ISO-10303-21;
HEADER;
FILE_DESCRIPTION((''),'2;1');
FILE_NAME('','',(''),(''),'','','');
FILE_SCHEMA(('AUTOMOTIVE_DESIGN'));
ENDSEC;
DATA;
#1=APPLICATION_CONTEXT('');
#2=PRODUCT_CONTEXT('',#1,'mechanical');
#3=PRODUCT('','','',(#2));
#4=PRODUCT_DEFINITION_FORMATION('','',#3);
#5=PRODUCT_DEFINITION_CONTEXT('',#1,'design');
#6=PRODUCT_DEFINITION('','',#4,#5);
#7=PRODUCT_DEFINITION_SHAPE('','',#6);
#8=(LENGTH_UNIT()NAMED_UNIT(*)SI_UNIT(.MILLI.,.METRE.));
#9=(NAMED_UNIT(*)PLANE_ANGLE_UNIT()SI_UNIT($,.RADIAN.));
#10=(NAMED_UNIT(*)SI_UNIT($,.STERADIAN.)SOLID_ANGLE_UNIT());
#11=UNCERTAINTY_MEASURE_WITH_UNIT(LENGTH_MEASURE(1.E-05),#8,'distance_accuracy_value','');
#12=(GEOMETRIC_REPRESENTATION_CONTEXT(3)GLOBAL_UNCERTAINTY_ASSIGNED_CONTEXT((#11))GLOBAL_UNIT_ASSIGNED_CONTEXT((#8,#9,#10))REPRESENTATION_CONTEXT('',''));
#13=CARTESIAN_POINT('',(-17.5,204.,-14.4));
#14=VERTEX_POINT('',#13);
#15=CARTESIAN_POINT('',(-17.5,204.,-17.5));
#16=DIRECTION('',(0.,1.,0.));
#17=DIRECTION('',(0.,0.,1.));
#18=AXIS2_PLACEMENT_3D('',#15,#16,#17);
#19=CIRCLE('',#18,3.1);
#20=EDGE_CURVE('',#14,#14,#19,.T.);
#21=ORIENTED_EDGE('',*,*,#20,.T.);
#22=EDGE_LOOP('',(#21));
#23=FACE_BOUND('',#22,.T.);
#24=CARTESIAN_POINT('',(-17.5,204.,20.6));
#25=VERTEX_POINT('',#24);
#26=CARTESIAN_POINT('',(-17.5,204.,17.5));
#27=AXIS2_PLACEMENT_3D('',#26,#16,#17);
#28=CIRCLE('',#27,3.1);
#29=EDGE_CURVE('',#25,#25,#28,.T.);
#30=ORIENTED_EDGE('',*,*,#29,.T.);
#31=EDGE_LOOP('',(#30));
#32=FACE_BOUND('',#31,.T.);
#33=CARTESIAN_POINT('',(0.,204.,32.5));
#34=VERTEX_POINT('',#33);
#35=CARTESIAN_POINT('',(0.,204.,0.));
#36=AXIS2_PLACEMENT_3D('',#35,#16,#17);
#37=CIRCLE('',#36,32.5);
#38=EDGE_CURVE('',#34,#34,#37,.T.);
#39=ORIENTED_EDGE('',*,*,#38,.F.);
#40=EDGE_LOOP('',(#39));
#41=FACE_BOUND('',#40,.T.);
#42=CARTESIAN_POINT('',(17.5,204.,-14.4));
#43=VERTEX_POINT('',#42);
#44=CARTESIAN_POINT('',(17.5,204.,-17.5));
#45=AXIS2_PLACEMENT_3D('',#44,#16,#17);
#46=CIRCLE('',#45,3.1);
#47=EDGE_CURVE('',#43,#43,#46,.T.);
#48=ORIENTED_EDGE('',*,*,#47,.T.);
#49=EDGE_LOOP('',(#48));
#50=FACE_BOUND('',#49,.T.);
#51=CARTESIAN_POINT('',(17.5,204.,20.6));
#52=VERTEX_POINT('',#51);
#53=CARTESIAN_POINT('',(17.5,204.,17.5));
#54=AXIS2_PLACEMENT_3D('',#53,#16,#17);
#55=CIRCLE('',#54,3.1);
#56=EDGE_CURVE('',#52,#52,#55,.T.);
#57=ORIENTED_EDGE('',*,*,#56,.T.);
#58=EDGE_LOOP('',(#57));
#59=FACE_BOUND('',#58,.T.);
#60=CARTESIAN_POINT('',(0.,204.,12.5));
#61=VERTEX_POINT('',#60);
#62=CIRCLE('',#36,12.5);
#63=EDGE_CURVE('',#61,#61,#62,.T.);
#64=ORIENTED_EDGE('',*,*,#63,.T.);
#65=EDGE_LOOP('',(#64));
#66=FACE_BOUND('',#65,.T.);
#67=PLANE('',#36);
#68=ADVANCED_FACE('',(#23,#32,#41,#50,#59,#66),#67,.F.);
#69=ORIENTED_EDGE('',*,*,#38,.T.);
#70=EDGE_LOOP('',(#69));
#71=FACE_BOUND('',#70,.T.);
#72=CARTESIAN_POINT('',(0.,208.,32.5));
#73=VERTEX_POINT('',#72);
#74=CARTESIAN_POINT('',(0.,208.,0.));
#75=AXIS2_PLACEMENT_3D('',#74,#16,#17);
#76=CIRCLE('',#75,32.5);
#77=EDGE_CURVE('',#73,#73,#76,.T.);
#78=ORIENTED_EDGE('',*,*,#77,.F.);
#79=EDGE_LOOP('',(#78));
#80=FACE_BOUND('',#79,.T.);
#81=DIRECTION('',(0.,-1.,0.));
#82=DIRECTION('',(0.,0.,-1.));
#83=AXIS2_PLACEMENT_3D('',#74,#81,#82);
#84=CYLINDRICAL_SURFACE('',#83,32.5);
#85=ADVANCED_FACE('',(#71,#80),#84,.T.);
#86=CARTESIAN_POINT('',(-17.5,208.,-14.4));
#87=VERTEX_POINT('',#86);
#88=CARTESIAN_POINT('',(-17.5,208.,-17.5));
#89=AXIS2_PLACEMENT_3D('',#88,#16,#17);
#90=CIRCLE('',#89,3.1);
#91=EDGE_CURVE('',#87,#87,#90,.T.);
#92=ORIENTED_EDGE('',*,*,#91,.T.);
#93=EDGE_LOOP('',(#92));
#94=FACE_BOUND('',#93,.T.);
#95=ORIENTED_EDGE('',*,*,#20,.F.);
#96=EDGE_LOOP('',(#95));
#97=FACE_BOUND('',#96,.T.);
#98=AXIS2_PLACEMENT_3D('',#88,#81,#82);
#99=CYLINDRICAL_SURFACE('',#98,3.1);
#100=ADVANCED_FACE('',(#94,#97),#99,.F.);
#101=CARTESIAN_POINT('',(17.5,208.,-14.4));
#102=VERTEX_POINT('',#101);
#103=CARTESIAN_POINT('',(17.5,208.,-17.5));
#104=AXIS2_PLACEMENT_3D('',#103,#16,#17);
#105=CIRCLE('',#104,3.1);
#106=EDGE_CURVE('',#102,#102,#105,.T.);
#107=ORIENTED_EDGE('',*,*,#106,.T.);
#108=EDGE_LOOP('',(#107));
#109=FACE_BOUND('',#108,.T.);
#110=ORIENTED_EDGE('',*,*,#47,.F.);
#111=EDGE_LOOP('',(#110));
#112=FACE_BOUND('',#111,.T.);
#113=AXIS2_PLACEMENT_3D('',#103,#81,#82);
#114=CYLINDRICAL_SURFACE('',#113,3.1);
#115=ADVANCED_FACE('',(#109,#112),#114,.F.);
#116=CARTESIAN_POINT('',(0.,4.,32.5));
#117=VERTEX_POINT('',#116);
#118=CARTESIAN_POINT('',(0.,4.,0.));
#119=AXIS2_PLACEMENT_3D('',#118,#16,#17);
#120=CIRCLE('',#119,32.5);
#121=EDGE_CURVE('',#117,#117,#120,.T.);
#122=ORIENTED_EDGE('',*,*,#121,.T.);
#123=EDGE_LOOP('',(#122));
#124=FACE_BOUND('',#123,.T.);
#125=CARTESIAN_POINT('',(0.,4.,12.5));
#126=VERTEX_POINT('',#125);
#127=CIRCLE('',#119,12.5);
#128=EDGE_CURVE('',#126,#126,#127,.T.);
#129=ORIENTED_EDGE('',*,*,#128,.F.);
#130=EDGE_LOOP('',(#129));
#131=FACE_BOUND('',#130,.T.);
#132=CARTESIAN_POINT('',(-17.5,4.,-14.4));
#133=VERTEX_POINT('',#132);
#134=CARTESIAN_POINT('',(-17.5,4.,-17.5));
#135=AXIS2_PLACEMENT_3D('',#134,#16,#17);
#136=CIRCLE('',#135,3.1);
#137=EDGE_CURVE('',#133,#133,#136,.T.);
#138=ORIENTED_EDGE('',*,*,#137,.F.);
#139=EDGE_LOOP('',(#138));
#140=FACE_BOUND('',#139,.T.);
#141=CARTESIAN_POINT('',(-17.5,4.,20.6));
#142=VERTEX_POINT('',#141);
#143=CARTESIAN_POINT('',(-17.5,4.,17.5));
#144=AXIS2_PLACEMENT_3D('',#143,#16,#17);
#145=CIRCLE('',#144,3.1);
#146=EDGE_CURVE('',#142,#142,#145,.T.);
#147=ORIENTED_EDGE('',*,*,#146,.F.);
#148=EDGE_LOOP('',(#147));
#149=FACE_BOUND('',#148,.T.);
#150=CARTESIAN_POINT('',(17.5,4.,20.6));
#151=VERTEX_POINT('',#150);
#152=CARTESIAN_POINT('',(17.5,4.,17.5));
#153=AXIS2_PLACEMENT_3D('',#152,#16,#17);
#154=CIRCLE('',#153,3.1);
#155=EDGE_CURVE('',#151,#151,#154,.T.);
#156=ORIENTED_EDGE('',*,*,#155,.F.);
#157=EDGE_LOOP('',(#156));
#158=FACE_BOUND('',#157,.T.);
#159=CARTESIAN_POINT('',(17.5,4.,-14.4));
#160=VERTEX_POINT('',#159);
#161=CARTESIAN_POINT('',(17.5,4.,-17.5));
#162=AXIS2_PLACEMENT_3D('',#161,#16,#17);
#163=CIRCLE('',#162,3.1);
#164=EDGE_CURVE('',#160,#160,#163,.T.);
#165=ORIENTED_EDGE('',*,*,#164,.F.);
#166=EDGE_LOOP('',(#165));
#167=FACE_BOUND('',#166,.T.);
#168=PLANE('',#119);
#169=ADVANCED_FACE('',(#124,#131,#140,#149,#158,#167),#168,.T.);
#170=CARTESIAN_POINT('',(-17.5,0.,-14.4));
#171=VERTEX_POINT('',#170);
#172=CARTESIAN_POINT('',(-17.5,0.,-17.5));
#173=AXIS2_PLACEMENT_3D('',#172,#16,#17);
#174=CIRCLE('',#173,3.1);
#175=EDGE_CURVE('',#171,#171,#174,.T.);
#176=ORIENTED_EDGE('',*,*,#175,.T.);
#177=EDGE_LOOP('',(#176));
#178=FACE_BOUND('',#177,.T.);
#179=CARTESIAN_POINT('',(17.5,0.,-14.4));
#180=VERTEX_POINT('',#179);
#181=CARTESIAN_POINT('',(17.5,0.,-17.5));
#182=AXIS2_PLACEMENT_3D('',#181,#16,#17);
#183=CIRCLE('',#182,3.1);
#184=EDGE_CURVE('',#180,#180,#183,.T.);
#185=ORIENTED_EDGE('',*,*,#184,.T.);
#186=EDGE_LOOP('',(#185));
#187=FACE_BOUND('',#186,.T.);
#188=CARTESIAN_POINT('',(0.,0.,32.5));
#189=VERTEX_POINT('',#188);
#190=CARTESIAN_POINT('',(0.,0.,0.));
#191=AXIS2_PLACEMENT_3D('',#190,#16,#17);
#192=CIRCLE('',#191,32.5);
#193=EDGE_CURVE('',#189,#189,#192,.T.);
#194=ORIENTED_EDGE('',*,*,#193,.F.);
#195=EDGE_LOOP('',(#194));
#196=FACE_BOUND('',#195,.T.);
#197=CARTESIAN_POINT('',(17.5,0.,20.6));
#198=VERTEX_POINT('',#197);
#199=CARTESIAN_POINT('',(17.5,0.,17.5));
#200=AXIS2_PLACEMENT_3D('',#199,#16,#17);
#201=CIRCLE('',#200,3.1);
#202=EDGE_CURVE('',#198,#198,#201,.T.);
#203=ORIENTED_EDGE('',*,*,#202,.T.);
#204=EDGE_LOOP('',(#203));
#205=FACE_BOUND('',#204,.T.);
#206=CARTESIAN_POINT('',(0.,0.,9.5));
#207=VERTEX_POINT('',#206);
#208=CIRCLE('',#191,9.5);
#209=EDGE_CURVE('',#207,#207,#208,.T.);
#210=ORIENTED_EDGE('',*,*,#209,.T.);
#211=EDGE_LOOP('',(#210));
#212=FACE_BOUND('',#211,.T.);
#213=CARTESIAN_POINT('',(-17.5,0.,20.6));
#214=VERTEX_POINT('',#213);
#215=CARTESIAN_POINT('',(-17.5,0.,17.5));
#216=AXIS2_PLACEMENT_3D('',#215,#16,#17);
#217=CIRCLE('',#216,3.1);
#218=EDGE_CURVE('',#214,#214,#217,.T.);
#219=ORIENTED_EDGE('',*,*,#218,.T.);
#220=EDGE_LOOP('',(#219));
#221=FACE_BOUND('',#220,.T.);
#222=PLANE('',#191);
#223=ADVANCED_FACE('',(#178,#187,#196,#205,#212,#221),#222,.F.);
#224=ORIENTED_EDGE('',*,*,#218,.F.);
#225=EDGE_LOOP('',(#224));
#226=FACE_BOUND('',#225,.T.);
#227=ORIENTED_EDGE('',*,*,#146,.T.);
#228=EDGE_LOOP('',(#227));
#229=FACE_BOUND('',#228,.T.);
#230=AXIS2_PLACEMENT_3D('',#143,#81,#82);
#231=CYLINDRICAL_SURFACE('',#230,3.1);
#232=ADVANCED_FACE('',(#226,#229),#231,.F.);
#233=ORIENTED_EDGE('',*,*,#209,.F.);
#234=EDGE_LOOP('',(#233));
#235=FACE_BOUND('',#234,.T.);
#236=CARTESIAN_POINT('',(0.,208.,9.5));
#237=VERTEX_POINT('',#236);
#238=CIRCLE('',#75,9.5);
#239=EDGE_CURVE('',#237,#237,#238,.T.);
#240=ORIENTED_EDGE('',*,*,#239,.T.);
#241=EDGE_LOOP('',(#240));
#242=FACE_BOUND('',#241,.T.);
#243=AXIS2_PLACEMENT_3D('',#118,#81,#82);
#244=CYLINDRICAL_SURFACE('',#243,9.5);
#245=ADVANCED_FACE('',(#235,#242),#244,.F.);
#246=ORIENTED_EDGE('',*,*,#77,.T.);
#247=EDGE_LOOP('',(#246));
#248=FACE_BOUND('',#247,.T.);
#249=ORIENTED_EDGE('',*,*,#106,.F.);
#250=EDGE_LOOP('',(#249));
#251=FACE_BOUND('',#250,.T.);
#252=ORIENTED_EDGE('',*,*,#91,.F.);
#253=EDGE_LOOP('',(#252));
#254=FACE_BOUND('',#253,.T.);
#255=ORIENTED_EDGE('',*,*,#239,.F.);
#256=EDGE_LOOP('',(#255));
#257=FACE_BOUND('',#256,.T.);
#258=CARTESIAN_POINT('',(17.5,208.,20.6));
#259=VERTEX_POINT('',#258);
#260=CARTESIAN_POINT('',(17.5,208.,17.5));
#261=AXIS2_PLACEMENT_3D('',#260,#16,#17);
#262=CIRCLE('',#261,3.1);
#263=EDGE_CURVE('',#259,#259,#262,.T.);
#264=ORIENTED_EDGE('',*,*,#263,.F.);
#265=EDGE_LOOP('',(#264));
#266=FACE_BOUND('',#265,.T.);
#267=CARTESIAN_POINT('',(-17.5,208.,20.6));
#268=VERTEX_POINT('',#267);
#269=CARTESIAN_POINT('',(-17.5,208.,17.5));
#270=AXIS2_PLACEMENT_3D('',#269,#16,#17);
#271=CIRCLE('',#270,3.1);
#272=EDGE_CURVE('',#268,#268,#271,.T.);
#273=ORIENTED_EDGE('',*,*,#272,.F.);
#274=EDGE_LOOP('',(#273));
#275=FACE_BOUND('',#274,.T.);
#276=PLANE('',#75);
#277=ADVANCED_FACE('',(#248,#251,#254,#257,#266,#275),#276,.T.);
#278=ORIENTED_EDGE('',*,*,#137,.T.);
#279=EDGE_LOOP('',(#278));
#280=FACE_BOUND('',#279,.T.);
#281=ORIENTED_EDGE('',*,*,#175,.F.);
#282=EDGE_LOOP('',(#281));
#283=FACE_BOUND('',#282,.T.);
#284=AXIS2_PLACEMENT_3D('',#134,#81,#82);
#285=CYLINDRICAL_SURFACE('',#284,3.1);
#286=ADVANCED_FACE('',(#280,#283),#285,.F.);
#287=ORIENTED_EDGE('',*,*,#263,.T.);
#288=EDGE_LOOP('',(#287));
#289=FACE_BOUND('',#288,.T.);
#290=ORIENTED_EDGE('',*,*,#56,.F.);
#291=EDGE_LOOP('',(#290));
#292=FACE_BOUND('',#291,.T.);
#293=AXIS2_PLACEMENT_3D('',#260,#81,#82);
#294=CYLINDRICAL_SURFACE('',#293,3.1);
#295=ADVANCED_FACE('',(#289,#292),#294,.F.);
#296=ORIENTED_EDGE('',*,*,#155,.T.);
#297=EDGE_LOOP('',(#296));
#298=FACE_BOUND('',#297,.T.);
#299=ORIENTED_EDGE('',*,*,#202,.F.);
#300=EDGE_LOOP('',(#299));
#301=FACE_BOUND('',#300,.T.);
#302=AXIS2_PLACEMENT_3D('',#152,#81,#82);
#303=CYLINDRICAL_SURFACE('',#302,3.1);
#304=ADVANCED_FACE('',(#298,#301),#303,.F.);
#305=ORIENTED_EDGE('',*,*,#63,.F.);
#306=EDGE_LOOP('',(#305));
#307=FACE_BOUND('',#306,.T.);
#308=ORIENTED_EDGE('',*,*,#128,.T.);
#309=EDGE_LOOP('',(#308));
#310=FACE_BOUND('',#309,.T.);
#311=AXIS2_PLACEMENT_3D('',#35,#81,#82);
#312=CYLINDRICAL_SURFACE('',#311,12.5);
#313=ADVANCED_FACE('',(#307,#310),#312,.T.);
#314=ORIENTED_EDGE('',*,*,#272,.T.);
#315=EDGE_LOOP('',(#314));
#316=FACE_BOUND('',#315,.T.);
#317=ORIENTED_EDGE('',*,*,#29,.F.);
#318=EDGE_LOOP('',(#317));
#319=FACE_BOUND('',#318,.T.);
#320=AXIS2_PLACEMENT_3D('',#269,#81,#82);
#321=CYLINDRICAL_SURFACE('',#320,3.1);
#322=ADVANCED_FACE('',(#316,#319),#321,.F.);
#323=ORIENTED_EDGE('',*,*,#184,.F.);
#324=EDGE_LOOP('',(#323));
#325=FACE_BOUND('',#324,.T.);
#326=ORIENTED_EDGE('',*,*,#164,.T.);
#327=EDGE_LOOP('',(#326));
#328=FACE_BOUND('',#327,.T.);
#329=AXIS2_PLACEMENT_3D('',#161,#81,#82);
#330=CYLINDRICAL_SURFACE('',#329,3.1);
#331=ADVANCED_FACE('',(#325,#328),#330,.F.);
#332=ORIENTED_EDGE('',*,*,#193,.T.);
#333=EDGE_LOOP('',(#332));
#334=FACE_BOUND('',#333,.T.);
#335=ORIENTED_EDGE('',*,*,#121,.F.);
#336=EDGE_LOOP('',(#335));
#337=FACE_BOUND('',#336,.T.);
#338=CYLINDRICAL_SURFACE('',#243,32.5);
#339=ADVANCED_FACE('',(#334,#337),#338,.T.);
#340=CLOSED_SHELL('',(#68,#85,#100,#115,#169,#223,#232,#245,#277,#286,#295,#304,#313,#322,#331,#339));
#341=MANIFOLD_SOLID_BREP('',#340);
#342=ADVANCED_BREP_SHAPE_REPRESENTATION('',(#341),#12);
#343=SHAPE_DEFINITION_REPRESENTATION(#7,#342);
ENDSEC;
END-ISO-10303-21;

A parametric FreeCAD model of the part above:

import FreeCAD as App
import Part
import Sketcher
from FreeCAD import Vector
Q = App.Units.Quantity

doc = App.newDocument("Part")
params = doc.addObject("Spreadsheet::Sheet", "Params")
for row, (alias, value) in enumerate([
    ("sketch1_diameter", "65 mm"),
    ("sketch1_diameter2", "19 mm"),
    ("sketch1_diameter3", "6.2 mm"),
    ("pad1_length", "4 mm"),
    ("sketch2_diameter", "25 mm"),
    ("sketch2_diameter2", "19 mm"),
    ("pad2_length", "200 mm"),
    ("sketch3_diameter", "65 mm"),
    ("sketch3_diameter2", "19 mm"),
    ("sketch3_diameter3", "6.2 mm"),
    ("pad3_length", "4 mm"),
], start=1):
    params.set(f"A{row}", alias)
    params.set(f"B{row}", "=" + value)
    params.setAlias(f"B{row}", alias)

body = doc.addObject("PartDesign::Body", "Body")

# Sketch on XZ plane
sketch1 = body.newObject("Sketcher::SketchObject", "Sketch")
sketch1.AttachmentSupport = (doc.getObject("XZ_Plane"), [""])
sketch1.MapMode = "FlatFace"
sketch1.addGeometry([
    Part.Circle(Vector(0, 0, 0), Vector(0, 0, 1), 32.5),  # 0
    Part.Circle(Vector(-17.5, -17.5, 0), Vector(0, 0, 1), 3.1),  # 1
    Part.Circle(Vector(-17.5, 17.5, 0), Vector(0, 0, 1), 3.1),  # 2
    Part.Circle(Vector(0, 0, 0), Vector(0, 0, 1), 9.5),  # 3
    Part.Circle(Vector(17.5, -17.5, 0), Vector(0, 0, 1), 3.1),  # 4
    Part.Circle(Vector(17.5, 17.5, 0), Vector(0, 0, 1), 3.1),  # 5
], False)
sketch1.addConstraint([
    Sketcher.Constraint("Coincident", 0, 3, -1, 1),
    Sketcher.Constraint("Coincident", 3, 3, -1, 1),
    Sketcher.Constraint("Equal", 1, 2),
    Sketcher.Constraint("Equal", 2, 4),
    Sketcher.Constraint("Equal", 4, 5),
    Sketcher.Constraint("Symmetric", 2, 3, 4, 3, -1, 1),
    Sketcher.Constraint("Symmetric", 1, 3, 5, 3, -1, 1),
    Sketcher.Constraint("Symmetric", 1, 3, 4, 3, -2),
    Sketcher.Constraint("Diameter", 0, Q("65 mm")),
    Sketcher.Constraint("Diameter", 3, Q("19 mm")),
    Sketcher.Constraint("Diameter", 1, Q("6.2 mm")),
    Sketcher.Constraint("DistanceY", 1, 3, 2, 3, Q("35 mm")),
    Sketcher.Constraint("DistanceX", 1, 3, 4, 3, Q("35 mm")),
])
sketch1.setExpression("Constraints[8]", "Params.sketch1_diameter")
sketch1.setExpression("Constraints[9]", "Params.sketch1_diameter2")
sketch1.setExpression("Constraints[10]", "Params.sketch1_diameter3")
pad1 = body.newObject("PartDesign::Pad", "Pad")
pad1.Profile = sketch1
pad1.setExpression("Length", "Params.pad1_length")
pad1.Reversed = True

# Sketch on XZ plane
sketch2 = body.newObject("Sketcher::SketchObject", "Sketch001")
sketch2.AttachmentSupport = (doc.getObject("XZ_Plane"), [""])
sketch2.MapMode = "FlatFace"
sketch2.AttachmentOffset = App.Placement(Vector(0, 0, -4), App.Rotation())
sketch2.addGeometry([
    Part.Circle(Vector(0, 0, 0), Vector(0, 0, 1), 12),
    Part.Circle(Vector(0, 0, 0), Vector(0, 0, 1), 10),
], False)
sketch2.addConstraint([
    Sketcher.Constraint("Coincident", 0, 3, -1, 1),
    Sketcher.Constraint("Coincident", 1, 3, -1, 1),
    Sketcher.Constraint("Diameter", 0, Q("25 mm")),
    Sketcher.Constraint("Diameter", 1, Q("19 mm")),
])
sketch2.setExpression("Constraints[2]", "Params.sketch2_diameter")
sketch2.setExpression("Constraints[3]", "Params.sketch2_diameter2")
pad2 = body.newObject("PartDesign::Pad", "Pad001")
pad2.Profile = sketch2
pad2.setExpression("Length", "Params.pad2_length")
pad2.Reversed = True

# Sketch on XZ plane
sketch3 = body.newObject("Sketcher::SketchObject", "Sketch002")
sketch3.AttachmentSupport = (doc.getObject("XZ_Plane"), [""])
sketch3.MapMode = "FlatFace"
sketch3.AttachmentOffset = App.Placement(Vector(0, 0, -204), App.Rotation())
sketch3.addGeometry([
    Part.Circle(Vector(0, 0, 0), Vector(0, 0, 1), 32.5),  # 0
    Part.Circle(Vector(-17.5, -17.5, 0), Vector(0, 0, 1), 3.1),  # 1
    Part.Circle(Vector(-17.5, 17.5, 0), Vector(0, 0, 1), 3.1),  # 2
    Part.Circle(Vector(0, 0, 0), Vector(0, 0, 1), 9.5),  # 3
    Part.Circle(Vector(17.5, -17.5, 0), Vector(0, 0, 1), 3.1),  # 4
    Part.Circle(Vector(17.5, 17.5, 0), Vector(0, 0, 1), 3.1),  # 5
], False)
sketch3.addConstraint([
    Sketcher.Constraint("Coincident", 0, 3, -1, 1),
    Sketcher.Constraint("Coincident", 3, 3, -1, 1),
    Sketcher.Constraint("Equal", 1, 2),
    Sketcher.Constraint("Equal", 2, 4),
    Sketcher.Constraint("Equal", 4, 5),
    Sketcher.Constraint("Symmetric", 2, 3, 4, 3, -1, 1),
    Sketcher.Constraint("Symmetric", 1, 3, 5, 3, -1, 1),
    Sketcher.Constraint("Symmetric", 1, 3, 4, 3, -2),
    Sketcher.Constraint("Diameter", 0, Q("65 mm")),
    Sketcher.Constraint("Diameter", 3, Q("19 mm")),
    Sketcher.Constraint("Diameter", 1, Q("6.2 mm")),
    Sketcher.Constraint("DistanceY", 1, 3, 2, 3, Q("35 mm")),
    Sketcher.Constraint("DistanceX", 1, 3, 4, 3, Q("35 mm")),
])
sketch3.setExpression("Constraints[8]", "Params.sketch3_diameter")
sketch3.setExpression("Constraints[9]", "Params.sketch3_diameter2")
sketch3.setExpression("Constraints[10]", "Params.sketch3_diameter3")
pad3 = body.newObject("PartDesign::Pad", "Pad002")
pad3.Profile = sketch3
pad3.setExpression("Length", "Params.pad3_length")
pad3.Reversed = True

doc.recompute()
